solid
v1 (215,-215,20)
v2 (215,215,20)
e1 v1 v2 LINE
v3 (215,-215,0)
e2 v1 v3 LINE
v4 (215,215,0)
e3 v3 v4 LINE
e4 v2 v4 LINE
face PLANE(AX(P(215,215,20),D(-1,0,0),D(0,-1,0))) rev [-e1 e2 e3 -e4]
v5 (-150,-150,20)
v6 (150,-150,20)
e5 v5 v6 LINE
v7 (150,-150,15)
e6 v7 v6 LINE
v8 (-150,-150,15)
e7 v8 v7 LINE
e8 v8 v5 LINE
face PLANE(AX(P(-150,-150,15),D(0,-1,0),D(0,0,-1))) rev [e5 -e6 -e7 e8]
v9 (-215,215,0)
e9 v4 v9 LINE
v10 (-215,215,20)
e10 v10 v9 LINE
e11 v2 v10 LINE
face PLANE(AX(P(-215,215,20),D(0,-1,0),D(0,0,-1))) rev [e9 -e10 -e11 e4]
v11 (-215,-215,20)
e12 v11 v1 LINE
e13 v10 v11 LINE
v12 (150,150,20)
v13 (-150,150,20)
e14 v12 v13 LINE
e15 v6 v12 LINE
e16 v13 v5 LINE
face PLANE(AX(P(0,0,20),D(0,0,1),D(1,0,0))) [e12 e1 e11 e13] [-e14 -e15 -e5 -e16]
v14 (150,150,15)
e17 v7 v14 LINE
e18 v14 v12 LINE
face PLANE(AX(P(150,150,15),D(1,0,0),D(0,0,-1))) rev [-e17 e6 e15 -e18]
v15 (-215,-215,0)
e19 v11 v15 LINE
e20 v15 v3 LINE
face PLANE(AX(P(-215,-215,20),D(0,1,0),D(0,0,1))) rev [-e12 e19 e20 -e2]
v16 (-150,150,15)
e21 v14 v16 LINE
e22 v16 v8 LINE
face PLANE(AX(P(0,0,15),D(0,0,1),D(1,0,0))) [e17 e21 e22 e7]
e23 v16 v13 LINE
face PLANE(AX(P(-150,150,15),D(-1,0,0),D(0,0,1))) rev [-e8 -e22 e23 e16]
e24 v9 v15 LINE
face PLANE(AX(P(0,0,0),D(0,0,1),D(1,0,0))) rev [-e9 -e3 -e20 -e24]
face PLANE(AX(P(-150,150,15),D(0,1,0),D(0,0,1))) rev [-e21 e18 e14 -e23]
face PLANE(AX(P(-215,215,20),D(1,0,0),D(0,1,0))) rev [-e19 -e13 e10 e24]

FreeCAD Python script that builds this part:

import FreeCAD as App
import Part
import Sketcher
from FreeCAD import Vector
Q = App.Units.Quantity


def add_polygon(sketch, points):
    """Adds a closed chain of lines whose ends are joined by coincident constraints."""
    first, n = sketch.GeometryCount, len(points)
    for a, b in zip(points, points[1:] + points[:1]):
        sketch.addGeometry(Part.LineSegment(App.Vector(*a, 0), App.Vector(*b, 0)), False)
    for i in range(n):
        sketch.addConstraint(Sketcher.Constraint("Coincident", first + i, 2, first + (i + 1) % n, 1))

doc = App.newDocument("Part")
body = doc.addObject("PartDesign::Body", "Body")

sketch1 = body.newObject("Sketcher::SketchObject", "Sketch")
sketch1.AttachmentSupport = (doc.getObject("XY_Plane"), [""])
sketch1.MapMode = "FlatFace"
add_polygon(sketch1, [(-215, 215), (-215, -215), (215, -215), (215, 215)])
sketch1.addConstraint([
    Sketcher.Constraint("Vertical", 0),
    Sketcher.Constraint("Horizontal", 1),
    Sketcher.Constraint("Vertical", 2),
    Sketcher.Constraint("Horizontal", 3),
    Sketcher.Constraint("Symmetric", 0, 2, 2, 2, -1, 1),
    Sketcher.Constraint("Equal", 3, 0),
    Sketcher.Constraint("DistanceX", 1, 1, 1, 2, Q("430 mm")),
])
pad1 = body.newObject("PartDesign::Pad", "Pad")
pad1.Profile = sketch1
pad1.Length = 20

sketch2 = body.newObject("Sketcher::SketchObject", "Sketch001")
sketch2.AttachmentSupport = (doc.getObject("XY_Plane"), [""])
sketch2.MapMode = "FlatFace"
sketch2.AttachmentOffset = App.Placement(Vector(0, 0, 20), App.Rotation())
add_polygon(sketch2, [(-150, 150), (-150, -150), (150, -150), (150, 150)])
sketch2.addConstraint([
    Sketcher.Constraint("Vertical", 0),
    Sketcher.Constraint("Horizontal", 1),
    Sketcher.Constraint("Vertical", 2),
    Sketcher.Constraint("Horizontal", 3),
    Sketcher.Constraint("Symmetric", 0, 2, 2, 2, -1, 1),
    Sketcher.Constraint("Equal", 3, 0),
    Sketcher.Constraint("DistanceX", 1, 1, 1, 2, Q("300 mm")),
])
pocket1 = body.newObject("PartDesign::Pocket", "Pocket")
pocket1.Profile = sketch2
pocket1.Length = 5

doc.recompute()
